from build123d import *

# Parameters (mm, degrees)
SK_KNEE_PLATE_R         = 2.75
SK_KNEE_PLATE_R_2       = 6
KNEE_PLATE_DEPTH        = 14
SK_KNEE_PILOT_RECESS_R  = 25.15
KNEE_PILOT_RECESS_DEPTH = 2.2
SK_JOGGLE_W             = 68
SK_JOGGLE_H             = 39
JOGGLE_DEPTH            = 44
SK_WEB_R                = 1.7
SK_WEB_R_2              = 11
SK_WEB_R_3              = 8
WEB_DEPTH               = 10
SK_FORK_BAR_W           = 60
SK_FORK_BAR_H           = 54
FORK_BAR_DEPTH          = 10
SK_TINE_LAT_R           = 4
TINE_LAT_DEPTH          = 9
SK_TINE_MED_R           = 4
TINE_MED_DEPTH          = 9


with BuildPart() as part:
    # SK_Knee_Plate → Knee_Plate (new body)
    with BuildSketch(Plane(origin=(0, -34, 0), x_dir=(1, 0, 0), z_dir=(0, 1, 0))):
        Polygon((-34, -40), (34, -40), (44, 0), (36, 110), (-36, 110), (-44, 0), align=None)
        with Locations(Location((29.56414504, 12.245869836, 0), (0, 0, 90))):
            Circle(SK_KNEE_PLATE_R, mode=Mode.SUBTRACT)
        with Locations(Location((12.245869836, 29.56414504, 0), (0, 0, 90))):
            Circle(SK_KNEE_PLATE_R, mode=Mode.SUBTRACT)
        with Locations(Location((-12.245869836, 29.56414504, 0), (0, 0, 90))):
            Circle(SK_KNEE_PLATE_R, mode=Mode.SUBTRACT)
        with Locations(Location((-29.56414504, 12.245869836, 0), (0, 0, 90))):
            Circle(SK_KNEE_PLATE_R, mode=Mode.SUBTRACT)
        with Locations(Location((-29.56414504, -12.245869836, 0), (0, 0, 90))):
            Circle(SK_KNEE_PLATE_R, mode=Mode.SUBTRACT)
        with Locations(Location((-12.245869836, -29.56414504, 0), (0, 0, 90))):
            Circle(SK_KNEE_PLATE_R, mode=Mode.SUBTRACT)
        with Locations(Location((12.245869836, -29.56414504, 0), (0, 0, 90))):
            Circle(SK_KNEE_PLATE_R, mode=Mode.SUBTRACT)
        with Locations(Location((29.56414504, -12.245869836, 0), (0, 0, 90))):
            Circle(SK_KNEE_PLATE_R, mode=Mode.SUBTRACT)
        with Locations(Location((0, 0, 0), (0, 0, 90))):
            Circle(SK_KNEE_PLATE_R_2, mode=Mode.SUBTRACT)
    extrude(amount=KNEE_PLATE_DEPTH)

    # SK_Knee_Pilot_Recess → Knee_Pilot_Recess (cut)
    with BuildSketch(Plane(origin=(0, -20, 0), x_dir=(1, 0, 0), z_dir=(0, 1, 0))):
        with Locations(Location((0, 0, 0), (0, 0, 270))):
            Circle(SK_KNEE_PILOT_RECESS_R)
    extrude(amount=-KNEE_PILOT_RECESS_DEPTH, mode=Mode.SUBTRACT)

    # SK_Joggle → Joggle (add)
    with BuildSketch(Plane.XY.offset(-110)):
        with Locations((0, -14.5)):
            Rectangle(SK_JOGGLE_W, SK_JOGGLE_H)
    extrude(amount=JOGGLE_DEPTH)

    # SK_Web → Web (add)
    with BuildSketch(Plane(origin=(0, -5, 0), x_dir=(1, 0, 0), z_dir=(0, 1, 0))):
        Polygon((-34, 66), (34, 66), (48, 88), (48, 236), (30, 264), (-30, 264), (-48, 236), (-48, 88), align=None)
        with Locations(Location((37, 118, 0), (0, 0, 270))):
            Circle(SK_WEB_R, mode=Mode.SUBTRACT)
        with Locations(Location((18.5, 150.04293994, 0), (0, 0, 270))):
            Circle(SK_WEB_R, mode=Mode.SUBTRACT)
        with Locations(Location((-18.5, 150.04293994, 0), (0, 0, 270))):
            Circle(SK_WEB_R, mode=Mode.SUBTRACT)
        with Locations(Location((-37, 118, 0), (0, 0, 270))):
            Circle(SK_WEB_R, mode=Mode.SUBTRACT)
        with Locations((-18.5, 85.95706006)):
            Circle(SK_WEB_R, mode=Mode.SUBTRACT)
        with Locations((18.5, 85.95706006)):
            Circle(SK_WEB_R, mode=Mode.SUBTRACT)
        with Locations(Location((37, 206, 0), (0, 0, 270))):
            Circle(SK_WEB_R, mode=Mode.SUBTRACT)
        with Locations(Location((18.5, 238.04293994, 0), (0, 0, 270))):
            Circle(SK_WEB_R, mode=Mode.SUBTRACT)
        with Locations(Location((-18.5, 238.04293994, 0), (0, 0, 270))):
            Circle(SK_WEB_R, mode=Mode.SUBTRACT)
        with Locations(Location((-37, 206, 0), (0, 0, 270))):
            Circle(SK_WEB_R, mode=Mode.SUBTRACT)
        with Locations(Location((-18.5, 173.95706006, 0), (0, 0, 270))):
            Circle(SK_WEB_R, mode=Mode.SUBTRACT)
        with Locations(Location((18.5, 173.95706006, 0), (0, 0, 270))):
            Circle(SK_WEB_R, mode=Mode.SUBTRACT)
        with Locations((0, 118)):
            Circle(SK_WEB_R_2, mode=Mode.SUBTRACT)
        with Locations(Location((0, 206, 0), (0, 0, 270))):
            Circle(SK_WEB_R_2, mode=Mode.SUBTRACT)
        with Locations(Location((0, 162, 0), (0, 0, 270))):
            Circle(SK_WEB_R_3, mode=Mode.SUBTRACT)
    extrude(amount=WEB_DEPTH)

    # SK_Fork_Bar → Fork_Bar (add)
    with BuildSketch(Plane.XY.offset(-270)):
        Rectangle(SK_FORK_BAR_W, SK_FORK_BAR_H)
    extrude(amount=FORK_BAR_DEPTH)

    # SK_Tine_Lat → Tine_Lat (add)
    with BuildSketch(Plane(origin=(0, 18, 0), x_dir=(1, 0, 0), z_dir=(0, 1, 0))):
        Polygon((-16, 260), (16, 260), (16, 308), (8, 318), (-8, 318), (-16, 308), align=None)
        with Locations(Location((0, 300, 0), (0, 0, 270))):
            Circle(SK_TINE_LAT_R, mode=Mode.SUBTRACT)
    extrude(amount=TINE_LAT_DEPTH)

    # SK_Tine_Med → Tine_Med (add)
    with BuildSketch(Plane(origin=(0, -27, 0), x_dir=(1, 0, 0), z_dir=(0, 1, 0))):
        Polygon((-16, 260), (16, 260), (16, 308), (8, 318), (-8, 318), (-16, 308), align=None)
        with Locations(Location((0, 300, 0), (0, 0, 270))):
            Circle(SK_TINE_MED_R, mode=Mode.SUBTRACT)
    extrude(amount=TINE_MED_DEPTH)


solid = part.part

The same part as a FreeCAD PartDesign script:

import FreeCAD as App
import Part
import Sketcher

V = App.Vector


def add_polygon(sketch, points):
    """Adds a closed chain of lines whose ends are joined by coincident constraints."""
    first, n = sketch.GeometryCount, len(points)
    for a, b in zip(points, points[1:] + points[:1]):
        sketch.addGeometry(Part.LineSegment(App.Vector(*a, 0), App.Vector(*b, 0)), False)
    for i in range(n):
        sketch.addConstraint(Sketcher.Constraint("Coincident", first + i, 2, first + (i + 1) % n, 1))

doc = App.newDocument("Part")
params = doc.addObject("Spreadsheet::Sheet", "Params")
for row, (alias, value) in enumerate([
    ("sketch1_diameter", "12 mm"),
    ("sketch1_diameter2", "5.5 mm"),
    ("sketch1_width", "68 mm"),
    ("sketch1_width2", "72 mm"),
    ("pad1_length", "14 mm"),
    ("sketch2_diameter", "50.3 mm"),
    ("pocket1_length", "2.2 mm"),
    ("sketch3_width", "68 mm"),
    ("sketch3_height", "39 mm"),
    ("pad2_length", "44 mm"),
    ("sketch4_diameter", "22 mm"),
    ("sketch4_diameter2", "16 mm"),
    ("sketch4_diameter3", "3.4 mm"),
    ("sketch4_width", "68 mm"),
    ("sketch4_width2", "60 mm"),
    ("pad3_length", "10 mm"),
    ("sketch5_width", "60 mm"),
    ("sketch5_height", "54 mm"),
    ("pad4_length", "10 mm"),
    ("sketch6_diameter", "8 mm"),
    ("sketch6_width", "32 mm"),
    ("sketch6_width2", "16 mm"),
    ("sketch6_height", "48 mm"),
    ("pad5_length", "9 mm"),
    ("sketch7_diameter", "8 mm"),
    ("sketch7_width", "32 mm"),
    ("sketch7_width2", "16 mm"),
    ("sketch7_height", "48 mm"),
    ("pad6_length", "9 mm"),
], start=1):
    params.set(f"A{row}", alias)
    params.set(f"B{row}", "=" + value)
    params.setAlias(f"B{row}", alias)

body = doc.addObject("PartDesign::Body", "Body")

sketch1 = body.newObject("Sketcher::SketchObject", "Sketch")
sketch1.AttachmentSupport = (doc.getObject("XZ_Plane"), [""])
sketch1.MapMode = "FlatFace"
sketch1.AttachmentOffset = App.Placement(V(0, 0, 34), App.Rotation())
add_polygon(sketch1, [(-34, 40), (34, 40), (44, 0), (36, -110), (-36, -110), (-44, 0)])
sketch1.addGeometry(Part.Circle(V(-12.2, 29.6, 0), V(0, 0, 1), 2.8), False)
sketch1.addGeometry(Part.Circle(V(-29.6, 12.2, 0), V(0, 0, 1), 2.8), False)
sketch1.addGeometry(Part.Circle(V(12.2, 29.6, 0), V(0, 0, 1), 2.8), False)
sketch1.addGeometry(Part.Circle(V(29.6, 12.2, 0), V(0, 0, 1), 2.8), False)
sketch1.addGeometry(Part.Circle(V(-29.6, -12.2, 0), V(0, 0, 1), 2.8), False)
sketch1.addGeometry(Part.Circle(V(-12.2, -29.6, 0), V(0, 0, 1), 2.8), False)
sketch1.addGeometry(Part.Circle(V(0, 0, 0), V(0, 0, 1), 6), False)
sketch1.addGeometry(Part.Circle(V(29.6, -12.2, 0), V(0, 0, 1), 2.8), False)
sketch1.addGeometry(Part.Circle(V(12.2, -29.6, 0), V(0, 0, 1), 2.8), False)
sketch1.addConstraint([
    Sketcher.Constraint("Horizontal", 0),
    Sketcher.Constraint("Horizontal", 3),
    Sketcher.Constraint("Coincident", 12, 3, -1, 1),
    Sketcher.Constraint("Equal", 6, 7),
    Sketcher.Constraint("Equal", 7, 8),
    Sketcher.Constraint("Equal", 8, 9),
    Sketcher.Constraint("Equal", 9, 10),
    Sketcher.Constraint("Equal", 10, 11),
    Sketcher.Constraint("Equal", 11, 13),
    Sketcher.Constraint("Equal", 13, 14),
    Sketcher.Constraint("Symmetric", 9, 3, 10, 3, -1, 1),
    Sketcher.Constraint("Symmetric", 8, 3, 11, 3, -1, 1),
    Sketcher.Constraint("Symmetric", 7, 3, 13, 3, -1, 1),
    Sketcher.Constraint("Symmetric", 6, 3, 14, 3, -1, 1),
    Sketcher.Constraint("Symmetric", 1, 2, 4, 2, -1, 1),
    Sketcher.Constraint("Symmetric", 6, 3, 8, 3, -2),
    Sketcher.Constraint("Symmetric", 7, 3, 9, 3, -2),
    Sketcher.Constraint("PointOnObject", 1, 2, -1),
    Sketcher.Constraint("Equal", 2, 4),
    Sketcher.Constraint("Equal", 1, 5),
    Sketcher.Constraint("Diameter", 12, 12.0),
    Sketcher.Constraint("Diameter", 6, 5.5),
    Sketcher.Constraint("DistanceX", 0, 1, 0, 2, 68.0),
    Sketcher.Constraint("DistanceX", 3, 2, 3, 1, 72.0),
    Sketcher.Constraint("DistanceY", -1, 1, 0, 2, 40.0),
    Sketcher.Constraint("DistanceX", -1, 1, 1, 2, 44.0),
    Sketcher.Constraint("DistanceY", 2, 2, -1, 1, 110.0),
    Sketcher.Constraint("DistanceX", 6, 3, -1, 1, 12.24587),
    Sketcher.Constraint("DistanceY", -1, 1, 7, 3, 12.24587),
    Sketcher.Constraint("DistanceX", 7, 3, 9, 3, 59.12829),
    Sketcher.Constraint("DistanceY", 11, 3, 6, 3, 59.12829),
])
sketch1.setExpression("Constraints[26]", "Params.sketch1_diameter")
sketch1.setExpression("Constraints[27]", "Params.sketch1_diameter2")
sketch1.setExpression("Constraints[28]", "Params.sketch1_width")
sketch1.setExpression("Constraints[29]", "Params.sketch1_width2")
pad1 = body.newObject("PartDesign::Pad", "Pad")
pad1.Profile = sketch1
pad1.setExpression("Length", "Params.pad1_length")
pad1.Reversed = True

sketch2 = body.newObject("Sketcher::SketchObject", "Sketch001")
sketch2.AttachmentSupport = (doc.getObject("XZ_Plane"), [""])
sketch2.MapMode = "FlatFace"
sketch2.AttachmentOffset = App.Placement(V(0, 0, 20), App.Rotation())
sketch2.addGeometry(Part.Circle(V(0, 0, 0), V(0, 0, 1), 25), False)
sketch2.addConstraint([
    Sketcher.Constraint("Coincident", 0, 3, -1, 1),
    Sketcher.Constraint("Diameter", 0, 50.3),
])
sketch2.setExpression("Constraints[1]", "Params.sketch2_diameter")
pocket1 = body.newObject("PartDesign::Pocket", "Pocket")
pocket1.Profile = sketch2
pocket1.setExpression("Length", "Params.pocket1_length")
pocket1.Reversed = True

sketch3 = body.newObject("Sketcher::SketchObject", "Sketch002")
sketch3.AttachmentSupport = (doc.getObject("XY_Plane"), [""])
sketch3.MapMode = "FlatFace"
sketch3.AttachmentOffset = App.Placement(V(0, 0, -110), App.Rotation())
add_polygon(sketch3, [(-34, 5), (-34, -34), (34, -34), (34, 5)])
sketch3.addConstraint([
    Sketcher.Constraint("Vertical", 0),
    Sketcher.Constraint("Horizontal", 1),
    Sketcher.Constraint("Vertical", 2),
    Sketcher.Constraint("Horizontal", 3),
    Sketcher.Constraint("DistanceX", 1, 1, 1, 2, 68.0),
    Sketcher.Constraint("DistanceY", 0, 2, 0, 1, 39.0),
    Sketcher.Constraint("DistanceX", 0, 2, -1, 1, 34.0),
    Sketcher.Constraint("DistanceY", 0, 2, -1, 1, 34.0),
])
sketch3.setExpression("Constraints[8]", "Params.sketch3_width")
sketch3.setExpression("Constraints[9]", "Params.sketch3_height")
pad2 = body.newObject("PartDesign::Pad", "Pad001")
pad2.Profile = sketch3
pad2.setExpression("Length", "Params.pad2_length")

sketch4 = body.newObject("Sketcher::SketchObject", "Sketch003")
sketch4.AttachmentSupport = (doc.getObject("XZ_Plane"), [""])
sketch4.MapMode = "FlatFace"
sketch4.AttachmentOffset = App.Placement(V(0, 0, 5), App.Rotation())
add_polygon(sketch4, [(-34, -66), (34, -66), (48, -88), (48, -236), (30, -264), (-30, -264), (-48, -236), (-48, -88)])
sketch4.addGeometry(Part.Circle(V(-37, -118, 0), V(0, 0, 1), 1.7), False)
sketch4.addGeometry(Part.Circle(V(-18.5, -86, 0), V(0, 0, 1), 1.7), False)
sketch4.addGeometry(Part.Circle(V(-18.5, -150, 0), V(0, 0, 1), 1.7), False)
sketch4.addGeometry(Part.Circle(V(18.5, -86, 0), V(0, 0, 1), 1.7), False)
sketch4.addGeometry(Part.Circle(V(0, -118, 0), V(0, 0, 1), 11), False)
sketch4.addGeometry(Part.Circle(V(37, -118, 0), V(0, 0, 1), 1.7), False)
sketch4.addGeometry(Part.Circle(V(18.5, -150, 0), V(0, 0, 1), 1.7), False)
sketch4.addGeometry(Part.Circle(V(-18.5, -174, 0), V(0, 0, 1), 1.7), False)
sketch4.addGeometry(Part.Circle(V(-37, -206, 0), V(0, 0, 1), 1.7), False)
sketch4.addGeometry(Part.Circle(V(-18.5, -238, 0), V(0, 0, 1), 1.7), False)
sketch4.addGeometry(Part.Circle(V(0, -162, 0), V(0, 0, 1), 8), False)
sketch4.addGeometry(Part.Circle(V(18.5, -174, 0), V(0, 0, 1), 1.7), False)
sketch4.addGeometry(Part.Circle(V(0, -206, 0), V(0, 0, 1), 11), False)
sketch4.addGeometry(Part.Circle(V(18.5, -238, 0), V(0, 0, 1), 1.7), False)
sketch4.addGeometry(Part.Circle(V(37, -206, 0), V(0, 0, 1), 1.7), False)
sketch4.addConstraint([
    Sketcher.Constraint("Horizontal", 0),
    Sketcher.Constraint("Vertical", 2),
    Sketcher.Constraint("Horizontal", 4),
    Sketcher.Constraint("Vertical", 6),
    Sketcher.Constraint("Equal", 8, 9),
    Sketcher.Constraint("Equal", 9, 10),
    Sketcher.Constraint("Equal", 10, 11),
    Sketcher.Constraint("Equal", 11, 13),
    Sketcher.Constraint("Equal", 13, 14),
    Sketcher.Constraint("Equal", 14, 15),
    Sketcher.Constraint("Equal", 15, 16),
    Sketcher.Constraint("Equal", 16, 17),
    Sketcher.Constraint("Equal", 17, 19),
    Sketcher.Constraint("Equal", 12, 20),
    Sketcher.Constraint("Equal", 19, 21),
    Sketcher.Constraint("Equal", 21, 22),
    Sketcher.Constraint("Symmetric", 9, 3, 11, 3, -2),
    Sketcher.Constraint("Symmetric", 8, 3, 13, 3, -2),
    Sketcher.Constraint("Symmetric", 10, 3, 14, 3, -2),
    Sketcher.Constraint("Symmetric", 15, 3, 19, 3, -2),
    Sketcher.Constraint("Symmetric", 17, 3, 21, 3, -2),
    Sketcher.Constraint("Symmetric", 16, 3, 22, 3, -2),
    Sketcher.Constraint("Symmetric", 2, 2, 5, 2, -2),
    Sketcher.Constraint("PointOnObject", 12, 3, -2),
    Sketcher.Constraint("PointOnObject", 18, 3, -2),
    Sketcher.Constraint("PointOnObject", 20, 3, -2),
    Sketcher.Constraint("Horizontal", 8, 3, 12, 3),
    Sketcher.Constraint("Horizontal", 16, 3, 20, 3),
    Sketcher.Constraint("Horizontal", 1, 2, 6, 2),
    Sketcher.Constraint("Vertical", 9, 3, 10, 3),
    Sketcher.Constraint("Vertical", 10, 3, 15, 3),
    Sketcher.Constraint("Vertical", 8, 3, 16, 3),
    Sketcher.Constraint("Vertical", 15, 3, 17, 3),
    Sketcher.Constraint("Equal", 3, 5),
    Sketcher.Constraint("Equal", 1, 7),
    Sketcher.Constraint("Diameter", 12, 22.0),
    Sketcher.Constraint("Diameter", 18, 16.0),
    Sketcher.Constraint("Diameter", 8, 3.4),
    Sketcher.Constraint("DistanceX", 0, 1, 0, 2, 68.0),
    Sketcher.Constraint("DistanceX", 4, 2, 4, 1, 60.0),
    Sketcher.Constraint("DistanceY", 2, 2, 2, 1, 148.0),
    Sketcher.Constraint("DistanceX", 8, 3, -1, 1, 37.0),
    Sketcher.Constraint("DistanceY", 8, 3, -1, 1, 118.0),
    Sketcher.Constraint("DistanceY", 16, 3, -1, 1, 206.0),
    Sketcher.Constraint("DistanceY", 18, 3, -1, 1, 162.0),
    Sketcher.Constraint("DistanceY", 0, 2, -1, 1, 66.0),
    Sketcher.Constraint("DistanceX", -1, 1, 1, 2, 48.0),
    Sketcher.Constraint("DistanceY", 1, 2, -1, 1, 88.0),
    Sketcher.Constraint("DistanceY", 3, 2, -1, 1, 264.0),
    Sketcher.Constraint("DistanceX", 9, 3, 11, 3, 37.0),
    Sketcher.Constraint("DistanceY", 17, 3, 10, 3, 88.0),
    Sketcher.Constraint("DistanceY", 9, 3, -1, 1, 85.95706),
    Sketcher.Constraint("DistanceY", 10, 3, -1, 1, 150.04294),
    Sketcher.Constraint("DistanceY", 15, 3, -1, 1, 173.95706),
])
sketch4.setExpression("Constraints[43]", "Params.sketch4_diameter")
sketch4.setExpression("Constraints[44]", "Params.sketch4_diameter2")
sketch4.setExpression("Constraints[45]", "Params.sketch4_diameter3")
sketch4.setExpression("Constraints[46]", "Params.sketch4_width")
sketch4.setExpression("Constraints[47]", "Params.sketch4_width2")
pad3 = body.newObject("PartDesign::Pad", "Pad002")
pad3.Profile = sketch4
pad3.setExpression("Length", "Params.pad3_length")
pad3.Reversed = True

sketch5 = body.newObject("Sketcher::SketchObject", "Sketch004")
sketch5.AttachmentSupport = (doc.getObject("XY_Plane"), [""])
sketch5.MapMode = "FlatFace"
sketch5.AttachmentOffset = App.Placement(V(0, 0, -270), App.Rotation())
add_polygon(sketch5, [(-30, 27), (-30, -27), (30, -27), (30, 27)])
sketch5.addConstraint([
    Sketcher.Constraint("Vertical", 0),
    Sketcher.Constraint("Horizontal", 1),
    Sketcher.Constraint("Vertical", 2),
    Sketcher.Constraint("Horizontal", 3),
    Sketcher.Constraint("Symmetric", 0, 2, 2, 2, -1, 1),
    Sketcher.Constraint("DistanceX", 1, 1, 1, 2, 60.0),
    Sketcher.Constraint("DistanceY", 0, 2, 0, 1, 54.0),
])
sketch5.setExpression("Constraints[9]", "Params.sketch5_width")
sketch5.setExpression("Constraints[10]", "Params.sketch5_height")
pad4 = body.newObject("PartDesign::Pad", "Pad003")
pad4.Profile = sketch5
pad4.setExpression("Length", "Params.pad4_length")

sketch6 = body.newObject("Sketcher::SketchObject", "Sketch005")
sketch6.AttachmentSupport = (doc.getObject("XZ_Plane"), [""])
sketch6.MapMode = "FlatFace"
sketch6.AttachmentOffset = App.Placement(V(0, 0, -18), App.Rotation())
add_polygon(sketch6, [(-16, -260), (16, -260), (16, -308), (8, -318), (-8, -318), (-16, -308)])
sketch6.addGeometry(Part.Circle(V(0, -300, 0), V(0, 0, 1), 4), False)
sketch6.addConstraint([
    Sketcher.Constraint("Horizontal", 0),
    Sketcher.Constraint("Vertical", 1),
    Sketcher.Constraint("Horizontal", 3),
    Sketcher.Constraint("Vertical", 5),
    Sketcher.Constraint("Symmetric", 1, 2, 4, 2, -2),
    Sketcher.Constraint("PointOnObject", 6, 3, -2),
    Sketcher.Constraint("Equal", 2, 4),
    Sketcher.Constraint("Diameter", 6, 8.0),
    Sketcher.Constraint("DistanceX", 0, 1, 0, 2, 32.0),
    Sketcher.Constraint("DistanceX", 3, 2, 3, 1, 16.0),
    Sketcher.Constraint("DistanceY", 1, 2, 1, 1, 48.0),
    Sketcher.Constraint("DistanceY", 6, 3, -1, 1, 300.0),
    Sketcher.Constraint("DistanceY", 0, 2, -1, 1, 260.0),
    Sketcher.Constraint("DistanceY", 2, 2, -1, 1, 318.0),
])
sketch6.setExpression("Constraints[13]", "Params.sketch6_diameter")
sketch6.setExpression("Constraints[14]", "Params.sketch6_width")
sketch6.setExpression("Constraints[15]", "Params.sketch6_width2")
sketch6.setExpression("Constraints[16]", "Params.sketch6_height")
pad5 = body.newObject("PartDesign::Pad", "Pad004")
pad5.Profile = sketch6
pad5.setExpression("Length", "Params.pad5_length")
pad5.Reversed = True

sketch7 = body.newObject("Sketcher::SketchObject", "Sketch006")
sketch7.AttachmentSupport = (doc.getObject("XZ_Plane"), [""])
sketch7.MapMode = "FlatFace"
sketch7.AttachmentOffset = App.Placement(V(0, 0, 27), App.Rotation())
add_polygon(sketch7, [(-16, -260), (16, -260), (16, -308), (8, -318), (-8, -318), (-16, -308)])
sketch7.addGeometry(Part.Circle(V(0, -300, 0), V(0, 0, 1), 4), False)
sketch7.addConstraint([
    Sketcher.Constraint("Horizontal", 0),
    Sketcher.Constraint("Vertical", 1),
    Sketcher.Constraint("Horizontal", 3),
    Sketcher.Constraint("Vertical", 5),
    Sketcher.Constraint("Symmetric", 1, 2, 4, 2, -2),
    Sketcher.Constraint("PointOnObject", 6, 3, -2),
    Sketcher.Constraint("Equal", 2, 4),
    Sketcher.Constraint("Diameter", 6, 8.0),
    Sketcher.Constraint("DistanceX", 0, 1, 0, 2, 32.0),
    Sketcher.Constraint("DistanceX", 3, 2, 3, 1, 16.0),
    Sketcher.Constraint("DistanceY", 1, 2, 1, 1, 48.0),
    Sketcher.Constraint("DistanceY", 6, 3, -1, 1, 300.0),
    Sketcher.Constraint("DistanceY", 0, 2, -1, 1, 260.0),
    Sketcher.Constraint("DistanceY", 2, 2, -1, 1, 318.0),
])
sketch7.setExpression("Constraints[13]", "Params.sketch7_diameter")
sketch7.setExpression("Constraints[14]", "Params.sketch7_width")
sketch7.setExpression("Constraints[15]", "Params.sketch7_width2")
sketch7.setExpression("Constraints[16]", "Params.sketch7_height")
pad6 = body.newObject("PartDesign::Pad", "Pad005")
pad6.Profile = sketch7
pad6.setExpression("Length", "Params.pad6_length")
pad6.Reversed = True

doc.recompute()
